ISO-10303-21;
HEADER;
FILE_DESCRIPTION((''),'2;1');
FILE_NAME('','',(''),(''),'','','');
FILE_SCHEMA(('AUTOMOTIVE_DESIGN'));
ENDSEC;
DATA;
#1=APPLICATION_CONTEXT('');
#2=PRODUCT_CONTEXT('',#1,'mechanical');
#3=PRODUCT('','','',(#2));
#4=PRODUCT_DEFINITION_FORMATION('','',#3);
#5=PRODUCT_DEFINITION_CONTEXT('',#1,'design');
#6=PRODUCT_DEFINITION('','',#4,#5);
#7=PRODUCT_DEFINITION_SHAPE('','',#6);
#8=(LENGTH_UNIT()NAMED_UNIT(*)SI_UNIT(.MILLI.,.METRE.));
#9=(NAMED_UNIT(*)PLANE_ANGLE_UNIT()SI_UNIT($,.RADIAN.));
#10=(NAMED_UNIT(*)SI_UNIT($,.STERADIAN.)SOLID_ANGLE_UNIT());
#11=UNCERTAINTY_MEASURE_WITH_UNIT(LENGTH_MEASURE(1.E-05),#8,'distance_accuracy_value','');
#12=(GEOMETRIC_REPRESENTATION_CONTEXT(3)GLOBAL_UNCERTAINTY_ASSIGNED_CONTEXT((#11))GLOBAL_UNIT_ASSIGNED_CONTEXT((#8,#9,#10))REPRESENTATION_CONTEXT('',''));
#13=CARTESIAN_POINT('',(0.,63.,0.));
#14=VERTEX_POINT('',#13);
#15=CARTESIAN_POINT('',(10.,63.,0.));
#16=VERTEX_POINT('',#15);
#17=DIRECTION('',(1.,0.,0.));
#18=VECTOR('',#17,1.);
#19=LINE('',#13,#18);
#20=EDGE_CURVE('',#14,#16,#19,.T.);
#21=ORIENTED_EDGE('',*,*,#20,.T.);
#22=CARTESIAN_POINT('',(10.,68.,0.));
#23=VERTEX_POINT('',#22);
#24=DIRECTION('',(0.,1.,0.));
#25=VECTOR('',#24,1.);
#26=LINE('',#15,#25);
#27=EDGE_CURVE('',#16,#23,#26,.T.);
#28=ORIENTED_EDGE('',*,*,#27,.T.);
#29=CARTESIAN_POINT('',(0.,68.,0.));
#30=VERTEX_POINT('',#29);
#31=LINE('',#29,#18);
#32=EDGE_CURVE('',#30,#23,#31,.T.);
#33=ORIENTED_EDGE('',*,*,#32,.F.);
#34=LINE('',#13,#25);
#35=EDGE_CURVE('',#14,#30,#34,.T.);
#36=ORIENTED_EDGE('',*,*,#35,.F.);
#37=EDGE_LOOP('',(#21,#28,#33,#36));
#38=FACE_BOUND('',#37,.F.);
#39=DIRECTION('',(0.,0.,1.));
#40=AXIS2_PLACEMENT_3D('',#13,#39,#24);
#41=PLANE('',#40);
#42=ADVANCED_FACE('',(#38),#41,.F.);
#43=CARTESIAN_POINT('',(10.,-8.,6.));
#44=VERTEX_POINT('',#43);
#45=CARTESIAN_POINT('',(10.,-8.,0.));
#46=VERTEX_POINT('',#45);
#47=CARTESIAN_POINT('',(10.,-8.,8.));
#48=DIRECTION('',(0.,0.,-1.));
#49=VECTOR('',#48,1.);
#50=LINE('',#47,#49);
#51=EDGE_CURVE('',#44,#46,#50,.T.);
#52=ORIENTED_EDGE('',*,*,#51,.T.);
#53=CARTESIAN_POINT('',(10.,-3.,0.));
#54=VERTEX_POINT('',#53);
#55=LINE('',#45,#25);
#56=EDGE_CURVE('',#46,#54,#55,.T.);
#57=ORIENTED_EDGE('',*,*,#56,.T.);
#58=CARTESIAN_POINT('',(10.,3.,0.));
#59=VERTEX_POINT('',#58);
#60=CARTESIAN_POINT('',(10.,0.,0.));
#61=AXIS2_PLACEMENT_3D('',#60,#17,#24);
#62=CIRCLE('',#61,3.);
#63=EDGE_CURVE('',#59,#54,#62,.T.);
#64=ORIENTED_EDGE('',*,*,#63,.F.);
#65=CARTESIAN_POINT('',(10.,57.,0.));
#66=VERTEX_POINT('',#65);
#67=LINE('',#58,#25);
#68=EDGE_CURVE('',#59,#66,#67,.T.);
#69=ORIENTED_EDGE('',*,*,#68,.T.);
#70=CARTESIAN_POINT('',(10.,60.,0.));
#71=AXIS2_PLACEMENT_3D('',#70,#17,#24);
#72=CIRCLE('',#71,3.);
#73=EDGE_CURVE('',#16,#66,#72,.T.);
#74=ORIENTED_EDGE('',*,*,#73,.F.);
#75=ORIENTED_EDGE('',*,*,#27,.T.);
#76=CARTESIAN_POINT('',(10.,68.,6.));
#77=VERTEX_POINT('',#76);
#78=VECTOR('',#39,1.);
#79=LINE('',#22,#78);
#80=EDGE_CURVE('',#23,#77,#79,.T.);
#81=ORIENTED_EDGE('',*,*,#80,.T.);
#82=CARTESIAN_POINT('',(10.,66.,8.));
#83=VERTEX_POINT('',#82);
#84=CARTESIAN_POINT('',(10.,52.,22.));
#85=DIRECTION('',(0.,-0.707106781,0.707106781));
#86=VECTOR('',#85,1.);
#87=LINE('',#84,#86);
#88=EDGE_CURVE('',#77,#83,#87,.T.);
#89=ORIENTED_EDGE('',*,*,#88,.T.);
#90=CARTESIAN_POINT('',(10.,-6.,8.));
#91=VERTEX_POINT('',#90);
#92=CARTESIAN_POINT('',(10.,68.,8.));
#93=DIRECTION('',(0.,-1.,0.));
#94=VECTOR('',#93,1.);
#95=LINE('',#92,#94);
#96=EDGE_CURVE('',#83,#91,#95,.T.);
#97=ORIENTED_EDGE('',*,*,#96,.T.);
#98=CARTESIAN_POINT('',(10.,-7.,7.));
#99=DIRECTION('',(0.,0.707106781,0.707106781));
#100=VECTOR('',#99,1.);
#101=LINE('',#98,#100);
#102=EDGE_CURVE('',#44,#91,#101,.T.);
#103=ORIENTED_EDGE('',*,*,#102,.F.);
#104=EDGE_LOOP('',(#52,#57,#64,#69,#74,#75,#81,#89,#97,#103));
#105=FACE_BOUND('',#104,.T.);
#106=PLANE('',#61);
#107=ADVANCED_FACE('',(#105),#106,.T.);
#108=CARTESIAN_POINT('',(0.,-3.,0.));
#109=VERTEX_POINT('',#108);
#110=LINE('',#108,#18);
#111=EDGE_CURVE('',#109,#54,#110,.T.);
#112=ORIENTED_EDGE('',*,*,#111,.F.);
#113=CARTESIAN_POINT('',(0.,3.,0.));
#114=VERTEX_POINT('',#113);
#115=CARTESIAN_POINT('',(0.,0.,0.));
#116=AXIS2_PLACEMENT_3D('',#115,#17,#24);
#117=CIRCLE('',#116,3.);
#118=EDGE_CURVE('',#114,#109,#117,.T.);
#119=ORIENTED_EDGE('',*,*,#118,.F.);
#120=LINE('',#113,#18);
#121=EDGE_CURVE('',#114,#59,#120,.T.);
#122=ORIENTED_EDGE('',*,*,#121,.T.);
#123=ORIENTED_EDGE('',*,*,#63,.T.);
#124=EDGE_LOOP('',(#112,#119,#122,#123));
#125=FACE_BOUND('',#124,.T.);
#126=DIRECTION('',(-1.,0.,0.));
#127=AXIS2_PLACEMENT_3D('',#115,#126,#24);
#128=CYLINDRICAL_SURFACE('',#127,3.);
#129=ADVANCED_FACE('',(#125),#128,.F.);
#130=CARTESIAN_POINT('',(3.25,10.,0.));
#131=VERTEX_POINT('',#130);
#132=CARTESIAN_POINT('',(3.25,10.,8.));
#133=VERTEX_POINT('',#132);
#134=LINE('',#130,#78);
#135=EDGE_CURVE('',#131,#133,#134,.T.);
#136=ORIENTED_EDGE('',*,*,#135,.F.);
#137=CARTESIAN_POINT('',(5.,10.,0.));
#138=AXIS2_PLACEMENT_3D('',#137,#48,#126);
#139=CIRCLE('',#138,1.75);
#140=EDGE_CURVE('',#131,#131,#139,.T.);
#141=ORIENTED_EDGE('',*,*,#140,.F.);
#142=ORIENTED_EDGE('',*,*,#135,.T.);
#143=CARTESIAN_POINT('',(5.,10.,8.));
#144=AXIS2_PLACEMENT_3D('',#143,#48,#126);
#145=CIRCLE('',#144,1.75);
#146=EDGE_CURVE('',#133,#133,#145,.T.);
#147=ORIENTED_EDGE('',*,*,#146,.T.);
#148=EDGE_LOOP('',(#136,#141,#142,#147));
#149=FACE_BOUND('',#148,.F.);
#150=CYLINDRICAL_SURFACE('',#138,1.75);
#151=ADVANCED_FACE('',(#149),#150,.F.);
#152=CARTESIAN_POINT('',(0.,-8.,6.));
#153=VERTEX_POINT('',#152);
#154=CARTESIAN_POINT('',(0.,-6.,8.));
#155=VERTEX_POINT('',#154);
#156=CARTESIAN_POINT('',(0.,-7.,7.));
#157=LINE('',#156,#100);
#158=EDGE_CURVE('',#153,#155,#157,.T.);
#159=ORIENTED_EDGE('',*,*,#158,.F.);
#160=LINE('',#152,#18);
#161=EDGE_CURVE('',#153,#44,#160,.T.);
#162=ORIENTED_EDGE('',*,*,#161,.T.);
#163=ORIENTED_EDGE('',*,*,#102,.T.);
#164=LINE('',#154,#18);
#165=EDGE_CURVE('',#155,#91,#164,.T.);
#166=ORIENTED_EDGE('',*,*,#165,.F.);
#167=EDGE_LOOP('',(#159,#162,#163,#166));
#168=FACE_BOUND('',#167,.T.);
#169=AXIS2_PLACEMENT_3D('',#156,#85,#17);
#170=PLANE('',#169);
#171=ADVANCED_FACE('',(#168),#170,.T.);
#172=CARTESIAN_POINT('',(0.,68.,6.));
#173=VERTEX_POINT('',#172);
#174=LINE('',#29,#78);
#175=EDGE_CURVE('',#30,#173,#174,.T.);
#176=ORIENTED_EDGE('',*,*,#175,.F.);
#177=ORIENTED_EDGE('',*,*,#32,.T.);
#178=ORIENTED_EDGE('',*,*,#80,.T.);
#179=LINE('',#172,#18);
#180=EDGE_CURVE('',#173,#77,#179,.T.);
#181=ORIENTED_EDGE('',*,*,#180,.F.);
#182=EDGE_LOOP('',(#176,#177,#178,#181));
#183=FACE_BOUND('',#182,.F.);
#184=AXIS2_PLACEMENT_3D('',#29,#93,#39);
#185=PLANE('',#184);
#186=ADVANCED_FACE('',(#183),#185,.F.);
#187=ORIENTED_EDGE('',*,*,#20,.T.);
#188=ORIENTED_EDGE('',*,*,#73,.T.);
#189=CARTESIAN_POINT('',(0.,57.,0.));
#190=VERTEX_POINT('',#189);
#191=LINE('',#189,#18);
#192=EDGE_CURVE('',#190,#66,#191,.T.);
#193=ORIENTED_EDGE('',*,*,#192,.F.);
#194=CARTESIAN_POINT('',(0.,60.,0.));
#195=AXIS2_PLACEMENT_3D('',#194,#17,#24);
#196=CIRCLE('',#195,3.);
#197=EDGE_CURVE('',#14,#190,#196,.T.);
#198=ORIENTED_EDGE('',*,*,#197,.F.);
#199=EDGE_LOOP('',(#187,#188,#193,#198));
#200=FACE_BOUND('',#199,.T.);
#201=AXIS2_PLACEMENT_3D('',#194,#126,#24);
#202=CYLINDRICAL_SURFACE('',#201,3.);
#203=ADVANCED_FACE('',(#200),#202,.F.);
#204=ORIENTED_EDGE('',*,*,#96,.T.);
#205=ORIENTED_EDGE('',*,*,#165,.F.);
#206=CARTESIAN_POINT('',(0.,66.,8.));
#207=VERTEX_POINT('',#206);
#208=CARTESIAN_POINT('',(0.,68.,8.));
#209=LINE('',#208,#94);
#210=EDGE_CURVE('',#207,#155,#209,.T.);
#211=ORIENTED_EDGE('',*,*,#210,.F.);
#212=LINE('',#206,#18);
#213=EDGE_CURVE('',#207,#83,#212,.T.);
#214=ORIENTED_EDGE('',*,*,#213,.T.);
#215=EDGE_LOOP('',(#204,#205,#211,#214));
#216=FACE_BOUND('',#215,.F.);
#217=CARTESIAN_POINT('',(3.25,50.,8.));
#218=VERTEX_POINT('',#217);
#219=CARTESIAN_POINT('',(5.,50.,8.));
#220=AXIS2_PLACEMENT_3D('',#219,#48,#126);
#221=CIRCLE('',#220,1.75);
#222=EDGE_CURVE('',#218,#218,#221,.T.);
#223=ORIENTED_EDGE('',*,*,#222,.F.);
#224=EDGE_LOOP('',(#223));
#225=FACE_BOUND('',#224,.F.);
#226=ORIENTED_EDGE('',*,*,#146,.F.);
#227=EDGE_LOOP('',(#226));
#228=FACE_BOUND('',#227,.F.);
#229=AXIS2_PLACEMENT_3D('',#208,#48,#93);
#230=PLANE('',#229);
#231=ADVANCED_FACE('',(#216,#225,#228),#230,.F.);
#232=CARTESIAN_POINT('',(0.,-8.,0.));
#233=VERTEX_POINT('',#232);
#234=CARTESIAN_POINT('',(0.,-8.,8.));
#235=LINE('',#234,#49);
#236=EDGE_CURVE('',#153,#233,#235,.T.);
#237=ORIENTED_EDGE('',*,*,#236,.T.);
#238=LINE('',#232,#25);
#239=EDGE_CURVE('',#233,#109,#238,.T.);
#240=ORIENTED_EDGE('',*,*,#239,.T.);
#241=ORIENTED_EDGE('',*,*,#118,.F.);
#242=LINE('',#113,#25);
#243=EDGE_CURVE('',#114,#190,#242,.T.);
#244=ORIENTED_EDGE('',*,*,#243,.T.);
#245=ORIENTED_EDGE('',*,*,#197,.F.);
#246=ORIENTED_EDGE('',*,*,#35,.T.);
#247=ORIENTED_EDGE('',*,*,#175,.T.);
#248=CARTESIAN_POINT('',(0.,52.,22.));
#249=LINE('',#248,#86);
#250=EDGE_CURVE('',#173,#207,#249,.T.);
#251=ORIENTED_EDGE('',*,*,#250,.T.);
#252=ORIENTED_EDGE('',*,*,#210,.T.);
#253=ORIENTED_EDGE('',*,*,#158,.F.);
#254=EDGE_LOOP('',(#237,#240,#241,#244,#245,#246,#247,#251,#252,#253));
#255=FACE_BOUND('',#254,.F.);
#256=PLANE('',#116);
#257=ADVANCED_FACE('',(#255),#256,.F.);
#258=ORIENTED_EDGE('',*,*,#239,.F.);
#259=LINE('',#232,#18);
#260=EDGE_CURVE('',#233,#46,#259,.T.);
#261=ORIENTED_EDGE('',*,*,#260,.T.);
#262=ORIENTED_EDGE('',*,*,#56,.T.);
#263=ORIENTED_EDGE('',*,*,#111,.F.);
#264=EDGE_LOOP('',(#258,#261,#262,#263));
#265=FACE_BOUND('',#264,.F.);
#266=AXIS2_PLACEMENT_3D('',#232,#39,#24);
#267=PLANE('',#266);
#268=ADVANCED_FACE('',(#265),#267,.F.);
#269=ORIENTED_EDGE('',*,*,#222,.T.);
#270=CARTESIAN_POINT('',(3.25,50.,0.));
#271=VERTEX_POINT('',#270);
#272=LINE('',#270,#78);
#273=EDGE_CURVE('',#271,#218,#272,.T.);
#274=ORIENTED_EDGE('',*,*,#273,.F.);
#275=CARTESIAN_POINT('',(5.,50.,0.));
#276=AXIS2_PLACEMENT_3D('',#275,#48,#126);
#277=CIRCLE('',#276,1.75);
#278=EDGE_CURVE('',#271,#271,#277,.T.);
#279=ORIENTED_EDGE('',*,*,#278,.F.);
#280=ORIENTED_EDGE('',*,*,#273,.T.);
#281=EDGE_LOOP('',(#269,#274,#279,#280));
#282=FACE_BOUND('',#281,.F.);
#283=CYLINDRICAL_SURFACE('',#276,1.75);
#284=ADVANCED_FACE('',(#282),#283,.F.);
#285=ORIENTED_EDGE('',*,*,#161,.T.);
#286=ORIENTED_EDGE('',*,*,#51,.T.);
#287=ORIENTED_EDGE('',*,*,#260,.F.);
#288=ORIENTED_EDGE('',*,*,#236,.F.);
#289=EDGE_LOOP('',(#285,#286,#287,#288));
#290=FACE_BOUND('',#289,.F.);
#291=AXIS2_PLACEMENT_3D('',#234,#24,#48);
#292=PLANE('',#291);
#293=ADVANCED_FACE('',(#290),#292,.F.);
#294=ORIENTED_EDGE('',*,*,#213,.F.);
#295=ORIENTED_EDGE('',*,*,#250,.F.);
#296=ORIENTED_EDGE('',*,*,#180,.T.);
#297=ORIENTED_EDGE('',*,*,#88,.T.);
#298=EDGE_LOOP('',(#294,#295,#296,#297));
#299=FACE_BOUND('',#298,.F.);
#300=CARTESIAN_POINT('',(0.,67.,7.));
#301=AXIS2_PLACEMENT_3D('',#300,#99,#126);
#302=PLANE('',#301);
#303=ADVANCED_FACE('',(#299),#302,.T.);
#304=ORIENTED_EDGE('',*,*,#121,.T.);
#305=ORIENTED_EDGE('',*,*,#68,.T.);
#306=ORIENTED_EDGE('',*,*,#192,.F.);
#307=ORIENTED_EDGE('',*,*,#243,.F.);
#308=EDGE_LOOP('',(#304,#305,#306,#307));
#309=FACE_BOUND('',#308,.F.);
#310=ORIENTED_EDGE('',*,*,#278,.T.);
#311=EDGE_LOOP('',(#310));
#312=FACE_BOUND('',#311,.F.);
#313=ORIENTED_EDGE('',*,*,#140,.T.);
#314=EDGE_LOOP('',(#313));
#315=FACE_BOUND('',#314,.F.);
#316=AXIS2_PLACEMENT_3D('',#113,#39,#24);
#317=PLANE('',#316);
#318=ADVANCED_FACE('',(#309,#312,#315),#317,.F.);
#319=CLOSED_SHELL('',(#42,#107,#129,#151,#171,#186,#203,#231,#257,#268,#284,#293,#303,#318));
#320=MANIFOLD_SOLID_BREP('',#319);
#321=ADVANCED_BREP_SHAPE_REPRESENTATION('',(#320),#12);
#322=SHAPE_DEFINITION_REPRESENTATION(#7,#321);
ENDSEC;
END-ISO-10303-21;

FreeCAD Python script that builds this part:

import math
import FreeCAD as App
import Part
import Sketcher
from FreeCAD import Vector
Q = App.Units.Quantity


def edges_at(feature, points):
    """Names of the edges that pass closest to the given points."""
    edges = feature.Shape.Edges
    near = lambda p: min(range(len(edges)), key=lambda i: edges[i].distToShape(Part.Vertex(*p))[0])
    return sorted({f"Edge{near(p) + 1}" for p in points})

doc = App.newDocument("Part")
body = doc.addObject("PartDesign::Body", "Body")

# Sketch on YZ plane
sketch1 = body.newObject("Sketcher::SketchObject", "Sketch")
sketch1.AttachmentSupport = (doc.getObject("YZ_Plane"), [""])
sketch1.MapMode = "FlatFace"
sketch1.addGeometry([
    Part.ArcOfCircle(Part.Circle(Vector(60, 0, 0), Vector(0, 0, 1), 3), math.radians(0), math.radians(180)),  # 0
    Part.LineSegment(Vector(63, 0, 0), Vector(68, 0, 0)),  # 1
    Part.LineSegment(Vector(68, 0, 0), Vector(68, 8, 0)),  # 2
    Part.LineSegment(Vector(68, 8, 0), Vector(-8, 8, 0)),  # 3
    Part.LineSegment(Vector(-8, 8, 0), Vector(-8, 0, 0)),  # 4
    Part.LineSegment(Vector(-8, 0, 0), Vector(-3, 0, 0)),  # 5
    Part.ArcOfCircle(Part.Circle(Vector(0, 0, 0), Vector(0, 0, 1), 3), math.radians(0), math.radians(180)),  # 6
    Part.LineSegment(Vector(3, 0, 0), Vector(57, 0, 0)),  # 7
], False)
sketch1.addConstraint([
    Sketcher.Constraint("Coincident", 0, 1, 1, 1),
    Sketcher.Constraint("Coincident", 1, 2, 2, 1),
    Sketcher.Constraint("Coincident", 2, 2, 3, 1),
    Sketcher.Constraint("Coincident", 3, 2, 4, 1),
    Sketcher.Constraint("Coincident", 4, 2, 5, 1),
    Sketcher.Constraint("Coincident", 5, 2, 6, 2),
    Sketcher.Constraint("Coincident", 6, 1, 7, 1),
    Sketcher.Constraint("Coincident", 7, 2, 0, 2),
    Sketcher.Constraint("Horizontal", 1),
    Sketcher.Constraint("Vertical", 2),
    Sketcher.Constraint("Horizontal", 3),
    Sketcher.Constraint("Vertical", 4),
    Sketcher.Constraint("Horizontal", 5),
    Sketcher.Constraint("Horizontal", 7),
    Sketcher.Constraint("Coincident", 6, 3, -1, 1),
    Sketcher.Constraint("Equal", 0, 6),
    Sketcher.Constraint("PointOnObject", 0, 3, -1),
    Sketcher.Constraint("PointOnObject", 0, 1, -1),
    Sketcher.Constraint("PointOnObject", 4, 2, -1),
    Sketcher.Constraint("PointOnObject", 6, 1, -1),
    Sketcher.Constraint("Equal", 1, 5),
    Sketcher.Constraint("Radius", 0, Q("3 mm")),
    Sketcher.Constraint("DistanceX", 1, 1, 1, 2, Q("5 mm")),
    Sketcher.Constraint("DistanceY", 2, 1, 2, 2, Q("8 mm")),
    Sketcher.Constraint("DistanceX", -1, 1, 0, 3, Q("60 mm")),
])
pad1 = body.newObject("PartDesign::Pad", "Pad")
pad1.Profile = sketch1
pad1.Length = 10

# Sketch on XY plane
sketch2 = body.newObject("Sketcher::SketchObject", "Sketch001")
sketch2.AttachmentSupport = (doc.getObject("XY_Plane"), [""])
sketch2.MapMode = "FlatFace"
sketch2.addGeometry([
    Part.Circle(Vector(5, 50, 0), Vector(0, 0, 1), 1.8),
    Part.Circle(Vector(5, 10, 0), Vector(0, 0, 1), 1.8),
], False)
sketch2.addConstraint([
    Sketcher.Constraint("Equal", 0, 1),
    Sketcher.Constraint("Vertical", 0, 3, 1, 3),
    Sketcher.Constraint("Diameter", 0, Q("3.5 mm")),
    Sketcher.Constraint("DistanceY", -1, 1, 1, 3, Q("10 mm")),
    Sketcher.Constraint("DistanceX", -1, 1, 0, 3, Q("5 mm")),
    Sketcher.Constraint("DistanceY", -1, 1, 0, 3, Q("50 mm")),
])
pocket1 = body.newObject("PartDesign::Pocket", "Pocket")
pocket1.Profile = sketch2
pocket1.Type = "UpToFirst"
pocket1.Reversed = True
doc.recompute()

chamfer = body.newObject("PartDesign::Chamfer", "Chamfer")
chamfer.Base = (pocket1, edges_at(pocket1, [(5, 68, 8), (5, -8, 8)]))
chamfer.Size = 2

doc.recompute()
